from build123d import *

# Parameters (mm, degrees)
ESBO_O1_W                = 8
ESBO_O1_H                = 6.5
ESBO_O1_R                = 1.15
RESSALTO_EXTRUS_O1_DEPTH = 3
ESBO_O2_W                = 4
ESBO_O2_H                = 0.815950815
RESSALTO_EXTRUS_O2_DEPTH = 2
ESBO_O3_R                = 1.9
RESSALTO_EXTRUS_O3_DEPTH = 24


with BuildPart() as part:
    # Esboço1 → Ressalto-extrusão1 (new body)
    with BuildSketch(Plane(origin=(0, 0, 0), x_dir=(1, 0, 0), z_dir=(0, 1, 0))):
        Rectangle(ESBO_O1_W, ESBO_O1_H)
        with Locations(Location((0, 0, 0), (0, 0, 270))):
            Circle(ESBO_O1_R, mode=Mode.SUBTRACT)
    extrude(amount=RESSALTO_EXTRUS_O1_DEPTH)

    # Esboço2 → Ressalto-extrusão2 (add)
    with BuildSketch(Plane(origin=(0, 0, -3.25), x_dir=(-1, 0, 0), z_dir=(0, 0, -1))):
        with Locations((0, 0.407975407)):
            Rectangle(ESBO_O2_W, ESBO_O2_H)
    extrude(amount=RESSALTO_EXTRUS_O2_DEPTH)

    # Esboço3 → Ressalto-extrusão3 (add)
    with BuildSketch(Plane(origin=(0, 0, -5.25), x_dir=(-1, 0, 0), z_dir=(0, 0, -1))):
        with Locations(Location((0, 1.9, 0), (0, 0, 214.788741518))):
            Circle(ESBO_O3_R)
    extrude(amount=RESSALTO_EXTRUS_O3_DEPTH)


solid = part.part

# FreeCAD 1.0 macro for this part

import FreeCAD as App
import Part
import Sketcher


def add_polygon(sketch, points):
    """Adds a closed chain of lines whose ends are joined by coincident constraints."""
    first, n = sketch.GeometryCount, len(points)
    for a, b in zip(points, points[1:] + points[:1]):
        sketch.addGeometry(Part.LineSegment(App.Vector(*a, 0), App.Vector(*b, 0)), False)
    for i in range(n):
        sketch.addConstraint(Sketcher.Constraint("Coincident", first + i, 2, first + (i + 1) % n, 1))

doc = App.newDocument("Part")
body = doc.addObject("PartDesign::Body", "Body")

# Sketch on XZ plane
sketch1 = body.newObject("Sketcher::SketchObject", "Sketch")
sketch1.AttachmentSupport = (doc.getObject("XZ_Plane"), [""])
sketch1.MapMode = "FlatFace"
add_polygon(sketch1, [(-4, -3.2), (-4, 3.2), (4, 3.2), (4, -3.2)])  # lines 0-3
sketch1.addGeometry(Part.Circle(App.Vector(0, 0, 0), App.Vector(0, 0, 1), 1.1), False)  # 4
sketch1.addConstraint(Sketcher.Constraint("Vertical", 0))
sketch1.addConstraint(Sketcher.Constraint("Horizontal", 1))
sketch1.addConstraint(Sketcher.Constraint("Vertical", 2))
sketch1.addConstraint(Sketcher.Constraint("Horizontal", 3))
sketch1.addConstraint(Sketcher.Constraint("Coincident", 4, 3, -1, 1))
sketch1.addConstraint(Sketcher.Constraint("Symmetric", 0, 2, 2, 2, -1, 1))
sketch1.addConstraint(Sketcher.Constraint("Diameter", 4, 2.3))
sketch1.addConstraint(Sketcher.Constraint("DistanceX", 1, 1, 1, 2, 8.0))
sketch1.addConstraint(Sketcher.Constraint("DistanceY", 0, 1, 0, 2, 6.5))
pad1 = body.newObject("PartDesign::Pad", "Pad")
pad1.Profile = sketch1
pad1.Length = 3
pad1.Reversed = True

# Sketch on XY plane
sketch2 = body.newObject("Sketcher::SketchObject", "Sketch001")
sketch2.AttachmentSupport = (doc.getObject("XY_Plane"), [""])
sketch2.MapMode = "FlatFace"
sketch2.AttachmentOffset = App.Placement(App.Vector(0, 0, -3.25), App.Rotation())
add_polygon(sketch2, [(2, 0.8), (2, 0), (-2, 0), (-2, 0.8)])  # lines 0-3
sketch2.addConstraint(Sketcher.Constraint("Vertical", 0))
sketch2.addConstraint(Sketcher.Constraint("Horizontal", 1))
sketch2.addConstraint(Sketcher.Constraint("Vertical", 2))
sketch2.addConstraint(Sketcher.Constraint("Horizontal", 3))
sketch2.addConstraint(Sketcher.Constraint("Symmetric", 0, 2, 1, 2, -1, 1))
sketch2.addConstraint(Sketcher.Constraint("DistanceX", 1, 2, 1, 1, 4.0))
sketch2.addConstraint(Sketcher.Constraint("DistanceY", 0, 2, 0, 1, 0.815951))
pad2 = body.newObject("PartDesign::Pad", "Pad001")
pad2.Profile = sketch2
pad2.Length = 2
pad2.Reversed = True

# Sketch on XY plane
sketch3 = body.newObject("Sketcher::SketchObject", "Sketch002")
sketch3.AttachmentSupport = (doc.getObject("XY_Plane"), [""])
sketch3.MapMode = "FlatFace"
sketch3.AttachmentOffset = App.Placement(App.Vector(0, 0, -5.25), App.Rotation())
sketch3.addGeometry(Part.Circle(App.Vector(0, 1.9, 0), App.Vector(0, 0, 1), 1.9), False)
sketch3.addConstraint(Sketcher.Constraint("PointOnObject", 0, 3, -2))
sketch3.addConstraint(Sketcher.Constraint("Diameter", 0, 3.8))
sketch3.addConstraint(Sketcher.Constraint("DistanceY", -1, 1, 0, 3, 1.9))
pad3 = body.newObject("PartDesign::Pad", "Pad002")
pad3.Profile = sketch3
pad3.Length = 24
pad3.Reversed = True

doc.recompute()
